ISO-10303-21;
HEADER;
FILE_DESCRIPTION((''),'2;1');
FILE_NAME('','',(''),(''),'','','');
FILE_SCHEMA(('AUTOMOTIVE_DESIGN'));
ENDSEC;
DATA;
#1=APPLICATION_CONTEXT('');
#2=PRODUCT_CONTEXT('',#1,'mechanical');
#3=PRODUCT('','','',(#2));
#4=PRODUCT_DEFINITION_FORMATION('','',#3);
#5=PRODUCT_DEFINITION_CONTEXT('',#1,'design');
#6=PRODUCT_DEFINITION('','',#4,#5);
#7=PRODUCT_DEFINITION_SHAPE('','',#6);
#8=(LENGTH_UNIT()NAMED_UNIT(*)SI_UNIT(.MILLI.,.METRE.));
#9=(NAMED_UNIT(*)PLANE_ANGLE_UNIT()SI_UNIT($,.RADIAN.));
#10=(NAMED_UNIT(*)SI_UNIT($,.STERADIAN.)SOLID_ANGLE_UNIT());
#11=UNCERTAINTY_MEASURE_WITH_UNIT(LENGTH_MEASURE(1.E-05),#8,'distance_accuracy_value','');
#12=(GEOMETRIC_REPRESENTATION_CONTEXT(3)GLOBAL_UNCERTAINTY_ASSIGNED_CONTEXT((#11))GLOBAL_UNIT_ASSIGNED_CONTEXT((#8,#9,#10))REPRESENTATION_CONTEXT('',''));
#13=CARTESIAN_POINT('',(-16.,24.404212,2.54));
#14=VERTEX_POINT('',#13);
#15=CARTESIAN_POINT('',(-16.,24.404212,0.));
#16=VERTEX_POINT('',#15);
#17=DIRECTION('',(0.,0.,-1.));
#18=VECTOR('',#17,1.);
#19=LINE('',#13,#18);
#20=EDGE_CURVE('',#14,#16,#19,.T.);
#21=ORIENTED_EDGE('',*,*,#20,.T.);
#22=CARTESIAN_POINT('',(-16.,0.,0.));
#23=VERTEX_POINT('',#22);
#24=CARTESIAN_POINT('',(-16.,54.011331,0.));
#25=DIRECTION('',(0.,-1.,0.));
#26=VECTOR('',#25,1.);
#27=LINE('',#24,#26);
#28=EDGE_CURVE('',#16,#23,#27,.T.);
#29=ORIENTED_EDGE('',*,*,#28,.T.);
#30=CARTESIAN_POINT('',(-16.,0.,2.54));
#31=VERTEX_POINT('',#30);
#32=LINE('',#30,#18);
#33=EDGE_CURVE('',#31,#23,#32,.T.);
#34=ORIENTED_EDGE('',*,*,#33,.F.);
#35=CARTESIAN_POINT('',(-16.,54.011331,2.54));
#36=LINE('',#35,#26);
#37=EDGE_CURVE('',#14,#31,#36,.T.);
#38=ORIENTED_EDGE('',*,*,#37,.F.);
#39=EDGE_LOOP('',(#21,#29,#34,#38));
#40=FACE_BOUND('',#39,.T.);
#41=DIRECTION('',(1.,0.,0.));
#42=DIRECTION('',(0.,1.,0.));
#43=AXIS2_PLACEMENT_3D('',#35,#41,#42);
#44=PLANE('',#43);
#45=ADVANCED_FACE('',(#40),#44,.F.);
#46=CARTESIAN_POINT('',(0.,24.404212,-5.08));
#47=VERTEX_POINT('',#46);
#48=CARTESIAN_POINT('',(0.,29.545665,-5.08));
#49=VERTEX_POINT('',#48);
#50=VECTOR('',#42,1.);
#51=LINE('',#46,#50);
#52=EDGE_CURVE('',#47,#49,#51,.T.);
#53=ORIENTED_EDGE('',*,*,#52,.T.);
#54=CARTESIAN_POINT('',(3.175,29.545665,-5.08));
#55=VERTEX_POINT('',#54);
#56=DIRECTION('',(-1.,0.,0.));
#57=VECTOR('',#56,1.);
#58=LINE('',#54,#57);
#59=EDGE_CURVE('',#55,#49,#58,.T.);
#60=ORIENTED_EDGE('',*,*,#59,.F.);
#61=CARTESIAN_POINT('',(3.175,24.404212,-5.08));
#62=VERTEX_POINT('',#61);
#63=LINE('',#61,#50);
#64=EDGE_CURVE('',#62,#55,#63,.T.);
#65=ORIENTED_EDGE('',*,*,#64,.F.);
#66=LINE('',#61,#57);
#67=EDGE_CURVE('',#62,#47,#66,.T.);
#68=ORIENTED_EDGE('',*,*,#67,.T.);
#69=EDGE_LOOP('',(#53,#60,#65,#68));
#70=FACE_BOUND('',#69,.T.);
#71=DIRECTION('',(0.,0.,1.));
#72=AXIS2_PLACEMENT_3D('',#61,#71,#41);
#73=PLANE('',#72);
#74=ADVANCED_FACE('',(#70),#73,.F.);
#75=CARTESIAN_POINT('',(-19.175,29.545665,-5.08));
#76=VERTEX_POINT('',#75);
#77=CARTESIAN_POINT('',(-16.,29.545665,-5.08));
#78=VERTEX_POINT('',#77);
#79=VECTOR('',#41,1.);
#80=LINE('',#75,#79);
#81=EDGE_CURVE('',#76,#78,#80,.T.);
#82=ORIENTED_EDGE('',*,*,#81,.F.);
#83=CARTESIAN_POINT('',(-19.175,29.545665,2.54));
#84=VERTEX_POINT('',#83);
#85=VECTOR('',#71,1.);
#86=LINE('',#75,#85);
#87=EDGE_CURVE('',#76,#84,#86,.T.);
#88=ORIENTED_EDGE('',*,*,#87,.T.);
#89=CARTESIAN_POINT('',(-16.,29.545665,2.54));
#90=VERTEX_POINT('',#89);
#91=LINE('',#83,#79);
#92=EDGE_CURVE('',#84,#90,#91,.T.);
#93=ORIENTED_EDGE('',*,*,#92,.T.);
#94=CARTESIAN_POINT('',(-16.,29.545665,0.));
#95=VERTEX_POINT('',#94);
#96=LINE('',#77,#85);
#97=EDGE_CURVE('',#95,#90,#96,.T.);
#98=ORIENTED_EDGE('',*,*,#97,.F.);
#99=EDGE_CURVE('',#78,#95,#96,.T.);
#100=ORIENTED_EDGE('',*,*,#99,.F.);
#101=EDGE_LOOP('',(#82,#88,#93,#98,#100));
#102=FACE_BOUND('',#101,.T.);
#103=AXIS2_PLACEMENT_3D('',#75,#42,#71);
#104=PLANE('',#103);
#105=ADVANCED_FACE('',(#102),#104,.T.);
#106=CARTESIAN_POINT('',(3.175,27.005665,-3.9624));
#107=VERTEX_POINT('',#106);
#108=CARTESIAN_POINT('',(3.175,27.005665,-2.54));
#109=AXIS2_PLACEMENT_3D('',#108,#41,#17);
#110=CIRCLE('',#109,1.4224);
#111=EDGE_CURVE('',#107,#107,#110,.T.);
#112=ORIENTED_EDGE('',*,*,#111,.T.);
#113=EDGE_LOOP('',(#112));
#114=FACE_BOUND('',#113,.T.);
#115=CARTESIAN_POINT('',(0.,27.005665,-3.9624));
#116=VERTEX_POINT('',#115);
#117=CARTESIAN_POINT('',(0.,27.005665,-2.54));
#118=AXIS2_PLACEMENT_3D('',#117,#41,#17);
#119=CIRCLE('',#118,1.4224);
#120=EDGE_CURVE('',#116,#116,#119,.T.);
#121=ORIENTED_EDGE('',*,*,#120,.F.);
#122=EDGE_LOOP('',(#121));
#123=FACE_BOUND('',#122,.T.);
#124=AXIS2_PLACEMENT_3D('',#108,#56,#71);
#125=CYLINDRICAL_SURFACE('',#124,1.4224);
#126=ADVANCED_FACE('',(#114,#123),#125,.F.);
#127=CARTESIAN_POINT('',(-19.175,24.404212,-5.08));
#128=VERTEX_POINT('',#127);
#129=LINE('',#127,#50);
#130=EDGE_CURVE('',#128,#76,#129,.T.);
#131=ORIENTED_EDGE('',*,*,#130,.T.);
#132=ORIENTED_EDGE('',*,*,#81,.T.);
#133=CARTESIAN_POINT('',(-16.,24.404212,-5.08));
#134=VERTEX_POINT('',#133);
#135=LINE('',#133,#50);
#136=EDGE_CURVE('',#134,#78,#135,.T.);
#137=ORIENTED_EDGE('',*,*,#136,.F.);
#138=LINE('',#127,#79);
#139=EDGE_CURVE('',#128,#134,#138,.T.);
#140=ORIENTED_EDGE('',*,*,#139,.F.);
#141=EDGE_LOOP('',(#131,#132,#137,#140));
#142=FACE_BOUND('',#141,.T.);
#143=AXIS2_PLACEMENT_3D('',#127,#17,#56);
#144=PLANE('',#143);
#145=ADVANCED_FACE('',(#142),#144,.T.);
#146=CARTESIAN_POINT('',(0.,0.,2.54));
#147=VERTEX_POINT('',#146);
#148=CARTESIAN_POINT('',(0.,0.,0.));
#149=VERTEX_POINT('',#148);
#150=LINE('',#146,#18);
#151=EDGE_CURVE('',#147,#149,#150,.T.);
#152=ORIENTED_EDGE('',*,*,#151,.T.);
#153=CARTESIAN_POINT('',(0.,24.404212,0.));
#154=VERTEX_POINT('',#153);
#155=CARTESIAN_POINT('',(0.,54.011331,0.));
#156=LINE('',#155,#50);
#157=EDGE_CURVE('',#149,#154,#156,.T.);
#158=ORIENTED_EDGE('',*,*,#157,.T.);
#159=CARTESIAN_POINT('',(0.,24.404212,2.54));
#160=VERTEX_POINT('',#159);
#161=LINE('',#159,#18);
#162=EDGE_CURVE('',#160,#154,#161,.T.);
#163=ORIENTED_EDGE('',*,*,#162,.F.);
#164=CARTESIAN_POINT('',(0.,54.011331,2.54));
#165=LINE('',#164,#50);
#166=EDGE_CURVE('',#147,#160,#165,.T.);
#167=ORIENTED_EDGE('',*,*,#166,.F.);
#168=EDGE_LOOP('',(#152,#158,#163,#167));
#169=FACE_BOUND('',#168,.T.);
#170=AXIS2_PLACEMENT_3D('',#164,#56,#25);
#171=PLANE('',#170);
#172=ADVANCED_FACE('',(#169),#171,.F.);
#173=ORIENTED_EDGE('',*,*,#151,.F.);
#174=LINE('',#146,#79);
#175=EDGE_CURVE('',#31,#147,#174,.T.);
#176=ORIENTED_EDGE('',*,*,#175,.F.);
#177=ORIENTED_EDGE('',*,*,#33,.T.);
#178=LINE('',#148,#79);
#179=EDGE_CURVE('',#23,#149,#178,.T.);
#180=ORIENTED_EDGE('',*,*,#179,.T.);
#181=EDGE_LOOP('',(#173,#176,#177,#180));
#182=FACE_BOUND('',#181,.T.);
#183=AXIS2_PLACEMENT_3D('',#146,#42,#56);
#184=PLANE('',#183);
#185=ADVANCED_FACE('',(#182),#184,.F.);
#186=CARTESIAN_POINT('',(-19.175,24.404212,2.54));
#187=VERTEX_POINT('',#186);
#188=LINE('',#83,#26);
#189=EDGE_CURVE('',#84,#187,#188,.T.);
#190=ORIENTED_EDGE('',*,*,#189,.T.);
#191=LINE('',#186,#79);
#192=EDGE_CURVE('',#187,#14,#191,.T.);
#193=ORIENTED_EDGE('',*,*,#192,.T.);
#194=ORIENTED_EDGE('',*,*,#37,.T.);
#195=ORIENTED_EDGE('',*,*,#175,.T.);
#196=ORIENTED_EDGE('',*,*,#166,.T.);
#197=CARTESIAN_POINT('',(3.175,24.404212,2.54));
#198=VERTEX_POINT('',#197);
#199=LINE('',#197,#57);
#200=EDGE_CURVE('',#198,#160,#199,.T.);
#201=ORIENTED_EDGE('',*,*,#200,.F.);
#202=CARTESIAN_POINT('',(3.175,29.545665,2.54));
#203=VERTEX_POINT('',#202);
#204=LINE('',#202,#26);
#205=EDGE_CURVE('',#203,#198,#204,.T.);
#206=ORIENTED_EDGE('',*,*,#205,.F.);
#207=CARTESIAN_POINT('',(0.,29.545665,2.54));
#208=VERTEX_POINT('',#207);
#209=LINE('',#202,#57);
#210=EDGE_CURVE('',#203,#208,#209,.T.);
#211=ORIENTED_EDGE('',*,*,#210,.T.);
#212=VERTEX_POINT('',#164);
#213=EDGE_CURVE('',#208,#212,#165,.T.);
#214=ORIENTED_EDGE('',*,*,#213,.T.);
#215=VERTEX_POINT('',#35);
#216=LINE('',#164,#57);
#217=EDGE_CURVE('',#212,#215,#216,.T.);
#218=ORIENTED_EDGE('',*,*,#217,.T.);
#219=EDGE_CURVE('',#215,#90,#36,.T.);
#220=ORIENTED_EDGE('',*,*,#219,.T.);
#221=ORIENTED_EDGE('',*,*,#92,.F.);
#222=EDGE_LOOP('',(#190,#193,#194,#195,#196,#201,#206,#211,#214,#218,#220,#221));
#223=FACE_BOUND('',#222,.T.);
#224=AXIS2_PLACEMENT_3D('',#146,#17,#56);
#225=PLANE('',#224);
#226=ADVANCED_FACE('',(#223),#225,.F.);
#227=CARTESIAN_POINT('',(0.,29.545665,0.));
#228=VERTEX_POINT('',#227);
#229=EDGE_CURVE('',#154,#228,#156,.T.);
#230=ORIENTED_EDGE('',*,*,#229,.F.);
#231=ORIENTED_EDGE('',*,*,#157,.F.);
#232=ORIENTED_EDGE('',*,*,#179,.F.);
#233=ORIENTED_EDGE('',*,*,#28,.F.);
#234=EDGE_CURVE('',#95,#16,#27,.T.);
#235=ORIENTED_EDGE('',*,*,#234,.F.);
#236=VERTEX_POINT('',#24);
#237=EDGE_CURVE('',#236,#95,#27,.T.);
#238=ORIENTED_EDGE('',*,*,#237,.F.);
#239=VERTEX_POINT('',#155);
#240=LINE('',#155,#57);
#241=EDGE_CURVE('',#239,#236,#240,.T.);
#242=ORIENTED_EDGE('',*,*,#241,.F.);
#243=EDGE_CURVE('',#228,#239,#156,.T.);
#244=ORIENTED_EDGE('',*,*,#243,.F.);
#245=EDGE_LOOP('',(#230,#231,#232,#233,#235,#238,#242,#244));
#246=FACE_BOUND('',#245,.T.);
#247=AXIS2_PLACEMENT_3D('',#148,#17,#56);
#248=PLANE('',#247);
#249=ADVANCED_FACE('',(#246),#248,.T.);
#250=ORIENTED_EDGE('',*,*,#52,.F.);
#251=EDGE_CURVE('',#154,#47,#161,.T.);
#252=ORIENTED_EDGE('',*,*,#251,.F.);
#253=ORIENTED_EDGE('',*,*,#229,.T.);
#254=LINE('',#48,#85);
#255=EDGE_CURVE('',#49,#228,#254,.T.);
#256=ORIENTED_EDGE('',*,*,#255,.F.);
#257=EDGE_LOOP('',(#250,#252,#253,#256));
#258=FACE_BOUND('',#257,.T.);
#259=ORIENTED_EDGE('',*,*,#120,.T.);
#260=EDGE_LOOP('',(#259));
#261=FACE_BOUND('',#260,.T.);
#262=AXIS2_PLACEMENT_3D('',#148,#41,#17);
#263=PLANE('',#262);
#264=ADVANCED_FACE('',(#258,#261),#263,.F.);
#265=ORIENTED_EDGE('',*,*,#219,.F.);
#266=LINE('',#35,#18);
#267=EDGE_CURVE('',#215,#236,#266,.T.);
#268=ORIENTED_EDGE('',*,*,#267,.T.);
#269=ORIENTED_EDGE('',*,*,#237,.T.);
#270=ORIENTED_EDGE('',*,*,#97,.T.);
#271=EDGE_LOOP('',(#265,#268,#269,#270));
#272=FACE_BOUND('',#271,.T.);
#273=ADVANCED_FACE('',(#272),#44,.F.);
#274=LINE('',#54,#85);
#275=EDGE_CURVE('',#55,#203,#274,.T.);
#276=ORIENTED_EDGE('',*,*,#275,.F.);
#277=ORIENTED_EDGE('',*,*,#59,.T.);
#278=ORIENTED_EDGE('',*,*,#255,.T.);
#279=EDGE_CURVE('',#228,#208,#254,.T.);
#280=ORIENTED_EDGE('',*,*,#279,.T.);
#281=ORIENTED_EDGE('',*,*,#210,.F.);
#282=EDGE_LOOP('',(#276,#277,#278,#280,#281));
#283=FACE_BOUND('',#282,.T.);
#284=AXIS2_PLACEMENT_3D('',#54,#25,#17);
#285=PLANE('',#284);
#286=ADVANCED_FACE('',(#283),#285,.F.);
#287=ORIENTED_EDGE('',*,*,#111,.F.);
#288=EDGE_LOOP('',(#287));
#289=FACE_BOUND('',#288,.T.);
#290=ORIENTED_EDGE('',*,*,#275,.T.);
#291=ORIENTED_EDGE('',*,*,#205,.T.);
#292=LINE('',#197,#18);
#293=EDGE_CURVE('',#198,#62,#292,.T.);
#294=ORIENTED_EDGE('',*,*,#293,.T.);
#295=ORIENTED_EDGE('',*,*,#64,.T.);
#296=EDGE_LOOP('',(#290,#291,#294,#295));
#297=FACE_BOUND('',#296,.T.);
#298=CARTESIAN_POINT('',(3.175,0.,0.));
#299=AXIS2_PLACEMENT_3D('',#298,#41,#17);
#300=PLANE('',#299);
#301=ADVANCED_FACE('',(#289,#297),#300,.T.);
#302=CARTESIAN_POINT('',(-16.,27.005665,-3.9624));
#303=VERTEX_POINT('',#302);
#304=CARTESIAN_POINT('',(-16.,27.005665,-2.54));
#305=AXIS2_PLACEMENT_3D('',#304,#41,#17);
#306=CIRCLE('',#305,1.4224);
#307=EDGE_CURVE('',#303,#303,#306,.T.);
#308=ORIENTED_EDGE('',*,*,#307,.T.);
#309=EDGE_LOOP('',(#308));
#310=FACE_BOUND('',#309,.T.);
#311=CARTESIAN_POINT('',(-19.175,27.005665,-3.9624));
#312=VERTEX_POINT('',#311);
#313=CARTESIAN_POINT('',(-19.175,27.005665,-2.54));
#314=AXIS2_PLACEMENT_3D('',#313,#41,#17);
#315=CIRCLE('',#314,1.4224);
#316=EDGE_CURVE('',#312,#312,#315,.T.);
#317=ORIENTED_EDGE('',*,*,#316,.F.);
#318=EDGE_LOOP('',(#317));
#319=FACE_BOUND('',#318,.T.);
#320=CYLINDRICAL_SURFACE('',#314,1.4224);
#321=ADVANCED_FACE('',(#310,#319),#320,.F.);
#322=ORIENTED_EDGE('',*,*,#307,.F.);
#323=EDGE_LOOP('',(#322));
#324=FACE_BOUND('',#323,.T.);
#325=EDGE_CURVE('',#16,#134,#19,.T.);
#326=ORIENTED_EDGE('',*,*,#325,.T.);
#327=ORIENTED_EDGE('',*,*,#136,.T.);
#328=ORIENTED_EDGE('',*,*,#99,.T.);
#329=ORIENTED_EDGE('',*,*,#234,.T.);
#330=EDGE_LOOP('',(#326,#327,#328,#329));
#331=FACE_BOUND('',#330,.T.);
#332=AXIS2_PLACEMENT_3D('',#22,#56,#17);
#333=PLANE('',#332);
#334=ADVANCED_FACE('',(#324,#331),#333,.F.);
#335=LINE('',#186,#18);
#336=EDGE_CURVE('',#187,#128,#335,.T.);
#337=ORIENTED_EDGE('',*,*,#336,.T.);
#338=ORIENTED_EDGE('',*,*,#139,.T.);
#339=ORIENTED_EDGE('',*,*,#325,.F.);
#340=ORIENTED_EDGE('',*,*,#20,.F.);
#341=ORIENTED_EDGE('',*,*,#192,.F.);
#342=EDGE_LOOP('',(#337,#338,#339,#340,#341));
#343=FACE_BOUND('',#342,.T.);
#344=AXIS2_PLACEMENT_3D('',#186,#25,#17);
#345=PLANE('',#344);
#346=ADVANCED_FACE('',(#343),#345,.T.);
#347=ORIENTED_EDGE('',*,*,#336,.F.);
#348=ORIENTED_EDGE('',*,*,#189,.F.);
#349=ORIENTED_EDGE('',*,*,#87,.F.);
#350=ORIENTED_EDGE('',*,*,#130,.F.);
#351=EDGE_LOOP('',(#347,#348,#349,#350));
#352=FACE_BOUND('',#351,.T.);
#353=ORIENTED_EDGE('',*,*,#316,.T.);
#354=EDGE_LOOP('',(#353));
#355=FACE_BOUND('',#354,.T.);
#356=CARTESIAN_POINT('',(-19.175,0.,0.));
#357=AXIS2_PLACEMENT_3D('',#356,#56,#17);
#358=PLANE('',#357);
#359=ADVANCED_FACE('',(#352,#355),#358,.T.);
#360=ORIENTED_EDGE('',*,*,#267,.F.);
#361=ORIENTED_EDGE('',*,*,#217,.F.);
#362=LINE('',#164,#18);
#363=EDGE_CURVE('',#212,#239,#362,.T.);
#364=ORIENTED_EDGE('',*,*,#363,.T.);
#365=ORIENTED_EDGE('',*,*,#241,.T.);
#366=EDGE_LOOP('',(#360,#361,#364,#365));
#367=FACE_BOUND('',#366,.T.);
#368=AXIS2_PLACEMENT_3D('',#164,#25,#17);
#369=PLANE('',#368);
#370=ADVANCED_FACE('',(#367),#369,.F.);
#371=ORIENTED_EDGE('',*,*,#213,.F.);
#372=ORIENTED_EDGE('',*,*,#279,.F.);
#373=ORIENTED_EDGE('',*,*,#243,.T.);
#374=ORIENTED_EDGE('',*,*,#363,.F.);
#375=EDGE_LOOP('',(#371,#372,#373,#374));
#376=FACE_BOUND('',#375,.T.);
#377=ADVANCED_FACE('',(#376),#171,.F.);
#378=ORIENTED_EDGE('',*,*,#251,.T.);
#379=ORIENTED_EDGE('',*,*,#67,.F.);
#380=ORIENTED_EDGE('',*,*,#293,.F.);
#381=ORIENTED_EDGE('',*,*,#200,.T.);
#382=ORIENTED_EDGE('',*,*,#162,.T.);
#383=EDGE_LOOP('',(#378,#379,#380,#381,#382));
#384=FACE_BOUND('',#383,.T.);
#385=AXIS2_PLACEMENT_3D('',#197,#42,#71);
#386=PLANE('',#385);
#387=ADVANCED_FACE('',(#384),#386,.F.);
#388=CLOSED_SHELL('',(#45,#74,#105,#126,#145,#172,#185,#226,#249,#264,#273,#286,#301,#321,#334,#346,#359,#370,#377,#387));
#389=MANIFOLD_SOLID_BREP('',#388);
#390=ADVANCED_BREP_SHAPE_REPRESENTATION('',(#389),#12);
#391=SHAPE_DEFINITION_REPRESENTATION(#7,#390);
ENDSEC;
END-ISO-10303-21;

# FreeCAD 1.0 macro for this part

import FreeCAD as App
import Part
import Sketcher
from FreeCAD import Vector
Q = App.Units.Quantity

doc = App.newDocument("Part")
body = doc.addObject("PartDesign::Body", "Body")

# Sketch on XY plane
sketch1 = body.newObject("Sketcher::SketchObject", "Sketch")
sketch1.AttachmentSupport = (doc.getObject("XY_Plane"), [""])
sketch1.MapMode = "FlatFace"
sketch1.addGeometry(Part.LineSegment(Vector(-16, 54, 0), Vector(-16, 0, 0)), False)
sketch1.addGeometry(Part.LineSegment(Vector(-16, 0, 0), Vector(0, 0, 0)), False)
sketch1.addGeometry(Part.LineSegment(Vector(0, 0, 0), Vector(0, 54, 0)), False)
sketch1.addGeometry(Part.LineSegment(Vector(0, 54, 0), Vector(-16, 54, 0)), False)
sketch1.addConstraint(Sketcher.Constraint("Coincident", 0, 2, 1, 1))
sketch1.addConstraint(Sketcher.Constraint("Coincident", 1, 2, 2, 1))
sketch1.addConstraint(Sketcher.Constraint("Coincident", 2, 2, 3, 1))
sketch1.addConstraint(Sketcher.Constraint("Coincident", 3, 2, 0, 1))
sketch1.addConstraint(Sketcher.Constraint("Vertical", 0))
sketch1.addConstraint(Sketcher.Constraint("Horizontal", 1))
sketch1.addConstraint(Sketcher.Constraint("Vertical", 2))
sketch1.addConstraint(Sketcher.Constraint("Horizontal", 3))
sketch1.addConstraint(Sketcher.Constraint("Coincident", 1, 2, -1, 1))
sketch1.addConstraint(Sketcher.Constraint("DistanceX", 1, 1, 1, 2, 16.0))
sketch1.addConstraint(Sketcher.Constraint("DistanceY", 0, 2, 0, 1, 54.011331))
pad1 = body.newObject("PartDesign::Pad", "Pad")
pad1.Profile = sketch1
pad1.Length = Q("0.1 in")

# Sketch on YZ plane
sketch2 = body.newObject("Sketcher::SketchObject", "Sketch001")
sketch2.AttachmentSupport = (doc.getObject("YZ_Plane"), [""])
sketch2.MapMode = "FlatFace"
sketch2.addGeometry(Part.LineSegment(Vector(29.5, 2.5, 0), Vector(24.4, 2.5, 0)), False)
sketch2.addGeometry(Part.LineSegment(Vector(24.4, 2.5, 0), Vector(24.4, -5.1, 0)), False)
sketch2.addGeometry(Part.LineSegment(Vector(24.4, -5.1, 0), Vector(29.5, -5.1, 0)), False)
sketch2.addGeometry(Part.LineSegment(Vector(29.5, -5.1, 0), Vector(29.5, 2.5, 0)), False)
sketch2.addGeometry(Part.Circle(Vector(27, -2.5, 0), Vector(0, 0, 1), 1.4), False)
sketch2.addConstraint(Sketcher.Constraint("Coincident", 0, 2, 1, 1))
sketch2.addConstraint(Sketcher.Constraint("Coincident", 1, 2, 2, 1))
sketch2.addConstraint(Sketcher.Constraint("Coincident", 2, 2, 3, 1))
sketch2.addConstraint(Sketcher.Constraint("Coincident", 3, 2, 0, 1))
sketch2.addConstraint(Sketcher.Constraint("Horizontal", 0))
sketch2.addConstraint(Sketcher.Constraint("Vertical", 1))
sketch2.addConstraint(Sketcher.Constraint("Horizontal", 2))
sketch2.addConstraint(Sketcher.Constraint("Vertical", 3))
sketch2.addConstraint(Sketcher.Constraint("Diameter", 4, Q("0.112 in")))
sketch2.addConstraint(Sketcher.Constraint("DistanceY", 1, 2, 1, 1, Q("0.3 in")))
sketch2.addConstraint(Sketcher.Constraint("DistanceY", 4, 3, -1, 1, Q("0.1 in")))
sketch2.addConstraint(Sketcher.Constraint("DistanceY", -1, 1, 0, 2, Q("0.1 in")))
sketch2.addConstraint(Sketcher.Constraint("DistanceX", 4, 3, 2, 2, Q("0.1 in")))
sketch2.addConstraint(Sketcher.Constraint("DistanceX", 0, 2, 0, 1, 5.141453))
sketch2.addConstraint(Sketcher.Constraint("DistanceX", -1, 1, 4, 3, 27.005665))
pad2 = body.newObject("PartDesign::Pad", "Pad001")
pad2.Profile = sketch2
pad2.Length = Q("0.125 in")
doc.recompute()

datumplane = body.newObject("PartDesign::Plane", "DatumPlane")
datumplane.AttachmentSupport = (doc.getObject("YZ_Plane"), [""])
datumplane.MapMode = "FlatFace"
datumplane.AttachmentOffset = App.Placement(Vector(0, 0, -8), App.Rotation())
mirrored = body.newObject("PartDesign::Mirrored", "Mirrored")
mirrored.Originals = [pad2]
mirrored.MirrorPlane = (datumplane, [""])
body.Tip = mirrored

doc.recompute()
